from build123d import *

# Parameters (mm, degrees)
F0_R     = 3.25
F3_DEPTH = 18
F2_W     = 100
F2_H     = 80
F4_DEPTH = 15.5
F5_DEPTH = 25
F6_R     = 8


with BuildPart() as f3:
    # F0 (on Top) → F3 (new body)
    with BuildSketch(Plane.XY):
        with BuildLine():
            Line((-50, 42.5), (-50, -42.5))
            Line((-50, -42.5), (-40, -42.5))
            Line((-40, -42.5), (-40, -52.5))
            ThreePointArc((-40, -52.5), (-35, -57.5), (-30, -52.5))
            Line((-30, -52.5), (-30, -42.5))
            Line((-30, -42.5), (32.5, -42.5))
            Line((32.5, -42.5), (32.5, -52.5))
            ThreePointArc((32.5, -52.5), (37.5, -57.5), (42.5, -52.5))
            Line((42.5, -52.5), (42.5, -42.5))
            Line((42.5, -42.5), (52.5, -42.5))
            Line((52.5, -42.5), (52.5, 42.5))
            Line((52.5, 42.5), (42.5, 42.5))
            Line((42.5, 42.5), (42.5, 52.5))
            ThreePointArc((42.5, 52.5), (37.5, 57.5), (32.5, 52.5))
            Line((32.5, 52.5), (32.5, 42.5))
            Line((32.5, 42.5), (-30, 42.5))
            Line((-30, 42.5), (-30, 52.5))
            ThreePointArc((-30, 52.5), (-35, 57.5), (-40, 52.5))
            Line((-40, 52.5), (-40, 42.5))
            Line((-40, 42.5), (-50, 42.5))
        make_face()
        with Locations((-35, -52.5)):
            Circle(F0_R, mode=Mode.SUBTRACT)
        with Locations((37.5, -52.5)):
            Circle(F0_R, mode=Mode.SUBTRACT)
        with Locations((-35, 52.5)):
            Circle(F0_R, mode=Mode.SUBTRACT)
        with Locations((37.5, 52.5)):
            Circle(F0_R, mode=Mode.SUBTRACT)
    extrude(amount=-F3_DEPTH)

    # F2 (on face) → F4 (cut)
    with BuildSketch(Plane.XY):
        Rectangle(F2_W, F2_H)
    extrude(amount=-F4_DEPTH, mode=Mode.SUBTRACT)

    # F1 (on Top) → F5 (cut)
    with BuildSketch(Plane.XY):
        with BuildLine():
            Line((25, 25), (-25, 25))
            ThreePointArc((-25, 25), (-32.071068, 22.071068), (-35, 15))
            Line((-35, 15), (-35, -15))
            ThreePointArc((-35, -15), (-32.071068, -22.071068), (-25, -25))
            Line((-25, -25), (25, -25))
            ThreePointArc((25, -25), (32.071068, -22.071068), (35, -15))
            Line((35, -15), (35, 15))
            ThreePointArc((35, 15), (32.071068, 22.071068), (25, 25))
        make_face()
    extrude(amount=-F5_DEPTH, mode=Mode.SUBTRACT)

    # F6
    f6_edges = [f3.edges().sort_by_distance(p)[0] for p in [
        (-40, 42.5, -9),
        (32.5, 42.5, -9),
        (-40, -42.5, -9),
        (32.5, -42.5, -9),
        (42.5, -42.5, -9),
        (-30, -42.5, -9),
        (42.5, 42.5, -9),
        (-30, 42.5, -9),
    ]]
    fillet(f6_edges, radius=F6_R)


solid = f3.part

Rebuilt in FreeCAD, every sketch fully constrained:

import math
import FreeCAD as App
import Part
import Sketcher

V = App.Vector


def edges_at(feature, points):
    """Names of the edges that pass closest to the given points."""
    edges = feature.Shape.Edges
    near = lambda p: min(range(len(edges)), key=lambda i: edges[i].distToShape(Part.Vertex(*p))[0])
    return sorted({f"Edge{near(p) + 1}" for p in points})

doc = App.newDocument("Part")
body = doc.addObject("PartDesign::Body", "Body")

sketch1 = doc.addObject("Sketcher::SketchObject", "Sketch")
body.addObject(sketch1)
sketch1.AttachmentSupport = (doc.XY_Plane, [""])
sketch1.MapMode = "FlatFace"
sketch1.addGeometry([
    Part.LineSegment(V(-50, 42.5, 0), V(-50, -42.5, 0)),
    Part.LineSegment(V(-50, -42.5, 0), V(-40, -42.5, 0)),
    Part.LineSegment(V(-40, -42.5, 0), V(-40, -52.5, 0)),
    Part.ArcOfCircle(Part.Circle(V(-35, -52.5, 0), V(0, 0, 1), 5), math.radians(180), math.radians(360)),
    Part.LineSegment(V(-30, -52.5, 0), V(-30, -42.5, 0)),
    Part.LineSegment(V(-30, -42.5, 0), V(32.5, -42.5, 0)),
    Part.LineSegment(V(32.5, -42.5, 0), V(32.5, -52.5, 0)),
    Part.ArcOfCircle(Part.Circle(V(37.5, -52.5, 0), V(0, 0, 1), 5), math.radians(180), math.radians(360)),
    Part.LineSegment(V(42.5, -52.5, 0), V(42.5, -42.5, 0)),
    Part.LineSegment(V(42.5, -42.5, 0), V(52.5, -42.5, 0)),
    Part.LineSegment(V(52.5, -42.5, 0), V(52.5, 42.5, 0)),
    Part.LineSegment(V(52.5, 42.5, 0), V(42.5, 42.5, 0)),
    Part.LineSegment(V(42.5, 42.5, 0), V(42.5, 52.5, 0)),
    Part.ArcOfCircle(Part.Circle(V(37.5, 52.5, 0), V(0, 0, 1), 5), math.radians(0), math.radians(180)),
    Part.LineSegment(V(32.5, 52.5, 0), V(32.5, 42.5, 0)),
    Part.LineSegment(V(32.5, 42.5, 0), V(-30, 42.5, 0)),
    Part.LineSegment(V(-30, 42.5, 0), V(-30, 52.5, 0)),
    Part.ArcOfCircle(Part.Circle(V(-35, 52.5, 0), V(0, 0, 1), 5), math.radians(0), math.radians(180)),
    Part.LineSegment(V(-40, 52.5, 0), V(-40, 42.5, 0)),
    Part.LineSegment(V(-40, 42.5, 0), V(-50, 42.5, 0)),
    Part.Circle(V(-35, -52.5, 0), V(0, 0, 1), 3.25),
    Part.Circle(V(37.5, -52.5, 0), V(0, 0, 1), 3.25),
    Part.Circle(V(-35, 52.5, 0), V(0, 0, 1), 3.25),
    Part.Circle(V(37.5, 52.5, 0), V(0, 0, 1), 3.25),
], False)
sketch1.addConstraint([
    Sketcher.Constraint("Coincident", 0, 2, 1, 1),
    Sketcher.Constraint("Coincident", 1, 2, 2, 1),
    Sketcher.Constraint("Tangent", 2, 2, 3, 1),
    Sketcher.Constraint("Tangent", 3, 2, 4, 1),
    Sketcher.Constraint("Coincident", 4, 2, 5, 1),
    Sketcher.Constraint("Coincident", 5, 2, 6, 1),
    Sketcher.Constraint("Tangent", 6, 2, 7, 1),
    Sketcher.Constraint("Tangent", 7, 2, 8, 1),
    Sketcher.Constraint("Coincident", 8, 2, 9, 1),
    Sketcher.Constraint("Coincident", 9, 2, 10, 1),
    Sketcher.Constraint("Coincident", 10, 2, 11, 1),
    Sketcher.Constraint("Coincident", 11, 2, 12, 1),
    Sketcher.Constraint("Tangent", 12, 2, 13, 1),
    Sketcher.Constraint("Tangent", 13, 2, 14, 1),
    Sketcher.Constraint("Coincident", 14, 2, 15, 1),
    Sketcher.Constraint("Coincident", 15, 2, 16, 1),
    Sketcher.Constraint("Tangent", 16, 2, 17, 1),
    Sketcher.Constraint("Tangent", 17, 2, 18, 1),
    Sketcher.Constraint("Coincident", 18, 2, 19, 1),
    Sketcher.Constraint("Coincident", 19, 2, 0, 1),
    Sketcher.Constraint("Vertical", 0),
    Sketcher.Constraint("Horizontal", 1),
    Sketcher.Constraint("Vertical", 2),
    Sketcher.Constraint("Vertical", 4),
    Sketcher.Constraint("Horizontal", 5),
    Sketcher.Constraint("Vertical", 6),
    Sketcher.Constraint("Vertical", 8),
    Sketcher.Constraint("Horizontal", 9),
    Sketcher.Constraint("Vertical", 10),
    Sketcher.Constraint("Horizontal", 11),
    Sketcher.Constraint("Vertical", 12),
    Sketcher.Constraint("Vertical", 14),
    Sketcher.Constraint("Horizontal", 15),
    Sketcher.Constraint("Vertical", 16),
    Sketcher.Constraint("Vertical", 18),
    Sketcher.Constraint("Horizontal", 19),
    Sketcher.Constraint("Coincident", 20, 3, 3, 3),
    Sketcher.Constraint("Coincident", 21, 3, 7, 3),
    Sketcher.Constraint("Coincident", 22, 3, 17, 3),
    Sketcher.Constraint("Coincident", 23, 3, 13, 3),
    Sketcher.Constraint("Equal", 3, 7),
    Sketcher.Constraint("Equal", 7, 13),
    Sketcher.Constraint("Equal", 13, 17),
    Sketcher.Constraint("Equal", 20, 21),
    Sketcher.Constraint("Equal", 21, 22),
    Sketcher.Constraint("Equal", 22, 23),
    Sketcher.Constraint("Symmetric", 7, 3, 13, 3, -1),
    Sketcher.Constraint("Symmetric", 3, 3, 17, 3, -1),
    Sketcher.Constraint("Horizontal", 3, 3, 7, 3),
    Sketcher.Constraint("Horizontal", 1, 2, 4, 2),
    Sketcher.Constraint("Horizontal", 5, 2, 8, 2),
    Sketcher.Constraint("Horizontal", 11, 2, 14, 2),
    Sketcher.Constraint("Horizontal", 15, 2, 18, 2),
    Sketcher.Constraint("Equal", 1, 9),
    Sketcher.Constraint("Equal", 19, 2),
    Sketcher.Constraint("Equal", 8, 12),
    Sketcher.Constraint("Radius", 3, 5.0),
    Sketcher.Constraint("Diameter", 20, 6.5),
    Sketcher.Constraint("DistanceX", 1, 1, 1, 2, 10.0),
    Sketcher.Constraint("DistanceY", 0, 2, 0, 1, 85.0),
    Sketcher.Constraint("DistanceX", 5, 1, 5, 2, 62.5),
    Sketcher.Constraint("DistanceX", 3, 3, -1, 1, 35.0),
])
pad1 = doc.addObject("PartDesign::Pad", "Pad")
body.addObject(pad1)
pad1.Profile = sketch1
pad1.Length = 18
pad1.Reversed = True

sketch2 = doc.addObject("Sketcher::SketchObject", "Sketch001")
body.addObject(sketch2)
sketch2.AttachmentSupport = (doc.XY_Plane, [""])
sketch2.MapMode = "FlatFace"
sketch2.addGeometry([
    Part.LineSegment(V(-50, 40, 0), V(-50, -40, 0)),
    Part.LineSegment(V(-50, -40, 0), V(50, -40, 0)),
    Part.LineSegment(V(50, -40, 0), V(50, 40, 0)),
    Part.LineSegment(V(50, 40, 0), V(-50, 40, 0)),
], False)
sketch2.addConstraint([
    Sketcher.Constraint("Coincident", 0, 2, 1, 1),
    Sketcher.Constraint("Coincident", 1, 2, 2, 1),
    Sketcher.Constraint("Coincident", 2, 2, 3, 1),
    Sketcher.Constraint("Coincident", 3, 2, 0, 1),
    Sketcher.Constraint("Vertical", 0),
    Sketcher.Constraint("Horizontal", 1),
    Sketcher.Constraint("Vertical", 2),
    Sketcher.Constraint("Horizontal", 3),
    Sketcher.Constraint("Symmetric", 0, 2, 2, 2, -1, 1),
    Sketcher.Constraint("DistanceX", 1, 1, 1, 2, 100.0),
    Sketcher.Constraint("DistanceY", 0, 2, 0, 1, 80.0),
])
pocket1 = doc.addObject("PartDesign::Pocket", "Pocket")
body.addObject(pocket1)
pocket1.Profile = sketch2
pocket1.Length = 15.5

sketch3 = doc.addObject("Sketcher::SketchObject", "Sketch002")
body.addObject(sketch3)
sketch3.AttachmentSupport = (doc.XY_Plane, [""])
sketch3.MapMode = "FlatFace"
sketch3.addGeometry([
    Part.LineSegment(V(25, 25, 0), V(-25, 25, 0)),
    Part.ArcOfCircle(Part.Circle(V(-25.000001, 15.000001, 0), V(0, 0, 1), 9.999999), math.radians(89.999996), math.radians(180.000004)),
    Part.LineSegment(V(-35, 15, 0), V(-35, -15, 0)),
    Part.ArcOfCircle(Part.Circle(V(-25.000001, -15.000001, 0), V(0, 0, 1), 9.999999), math.radians(179.999996), math.radians(270.000004)),
    Part.LineSegment(V(-25, -25, 0), V(25, -25, 0)),
    Part.ArcOfCircle(Part.Circle(V(25.000001, -15.000001, 0), V(0, 0, 1), 9.999999), math.radians(-90.000004), math.radians(0.000004)),
    Part.LineSegment(V(35, -15, 0), V(35, 15, 0)),
    Part.ArcOfCircle(Part.Circle(V(25.000001, 15.000001, 0), V(0, 0, 1), 9.999999), math.radians(-0.000004), math.radians(90.000004)),
], False)
sketch3.addConstraint([
    Sketcher.Constraint("Tangent", 0, 2, 1, 1),
    Sketcher.Constraint("Tangent", 1, 2, 2, 1),
    Sketcher.Constraint("Tangent", 2, 2, 3, 1),
    Sketcher.Constraint("Tangent", 3, 2, 4, 1),
    Sketcher.Constraint("Tangent", 4, 2, 5, 1),
    Sketcher.Constraint("Tangent", 5, 2, 6, 1),
    Sketcher.Constraint("Tangent", 6, 2, 7, 1),
    Sketcher.Constraint("Tangent", 7, 2, 0, 1),
    Sketcher.Constraint("Horizontal", 0),
    Sketcher.Constraint("Vertical", 2),
    Sketcher.Constraint("Horizontal", 4),
    Sketcher.Constraint("Vertical", 6),
    Sketcher.Constraint("Equal", 1, 3),
    Sketcher.Constraint("Equal", 3, 5),
    Sketcher.Constraint("Equal", 5, 7),
    Sketcher.Constraint("Symmetric", 1, 3, 5, 3, -1, 1),
    Sketcher.Constraint("Radius", 1, 9.999999),
    Sketcher.Constraint("DistanceX", 0, 2, 0, 1, 50.0),
    Sketcher.Constraint("DistanceY", 2, 2, 2, 1, 30.0),
])
pocket2 = doc.addObject("PartDesign::Pocket", "Pocket001")
body.addObject(pocket2)
pocket2.Profile = sketch3
pocket2.Length = 25
doc.recompute()

fillet = doc.addObject("PartDesign::Fillet", "Fillet")
body.addObject(fillet)
fillet.Base = (pocket2, edges_at(pocket2, [
    (-40, 42.5, -9),
    (32.5, 42.5, -9),
    (-40, -42.5, -9),
    (32.5, -42.5, -9),
    (42.5, -42.5, -9),
    (-30, -42.5, -9),
    (42.5, 42.5, -9),
    (-30, 42.5, -9),
]))
fillet.Radius = 8

doc.recompute()
